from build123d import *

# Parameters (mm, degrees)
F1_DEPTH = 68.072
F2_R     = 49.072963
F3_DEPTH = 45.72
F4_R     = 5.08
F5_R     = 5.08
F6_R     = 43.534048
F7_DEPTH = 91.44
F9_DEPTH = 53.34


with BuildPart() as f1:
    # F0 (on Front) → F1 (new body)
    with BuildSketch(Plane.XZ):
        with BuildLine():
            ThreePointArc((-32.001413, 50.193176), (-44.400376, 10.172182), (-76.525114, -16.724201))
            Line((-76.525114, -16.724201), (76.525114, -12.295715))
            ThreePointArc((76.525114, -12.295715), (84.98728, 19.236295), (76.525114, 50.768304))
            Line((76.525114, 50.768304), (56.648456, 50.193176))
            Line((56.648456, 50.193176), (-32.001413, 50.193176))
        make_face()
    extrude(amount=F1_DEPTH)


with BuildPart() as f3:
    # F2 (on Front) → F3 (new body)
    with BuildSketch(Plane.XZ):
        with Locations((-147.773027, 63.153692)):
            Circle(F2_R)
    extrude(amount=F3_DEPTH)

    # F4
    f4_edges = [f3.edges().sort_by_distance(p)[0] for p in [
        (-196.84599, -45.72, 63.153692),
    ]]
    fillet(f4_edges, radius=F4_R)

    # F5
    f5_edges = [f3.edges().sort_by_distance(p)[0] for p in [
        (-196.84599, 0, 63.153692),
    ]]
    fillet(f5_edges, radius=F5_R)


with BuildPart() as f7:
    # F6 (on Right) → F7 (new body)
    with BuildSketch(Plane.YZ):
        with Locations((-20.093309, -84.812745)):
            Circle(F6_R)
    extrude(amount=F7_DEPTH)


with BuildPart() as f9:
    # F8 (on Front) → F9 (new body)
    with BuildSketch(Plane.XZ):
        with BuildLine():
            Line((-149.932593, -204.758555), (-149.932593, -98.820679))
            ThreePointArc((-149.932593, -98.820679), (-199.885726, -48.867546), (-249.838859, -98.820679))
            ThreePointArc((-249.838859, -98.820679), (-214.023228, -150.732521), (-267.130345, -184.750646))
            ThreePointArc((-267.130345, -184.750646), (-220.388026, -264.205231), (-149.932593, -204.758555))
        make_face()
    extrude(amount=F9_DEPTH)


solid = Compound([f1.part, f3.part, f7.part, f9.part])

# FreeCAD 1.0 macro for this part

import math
import FreeCAD as App
import Part
import Sketcher

V = App.Vector
Q = App.Units.Quantity


def edges_at(feature, points):
    """Names of the edges that pass closest to the given points."""
    edges = feature.Shape.Edges
    near = lambda p: min(range(len(edges)), key=lambda i: edges[i].distToShape(Part.Vertex(*p))[0])
    return sorted({f"Edge{near(p) + 1}" for p in points})

doc = App.newDocument("Part")
body = doc.addObject("PartDesign::Body", "Body")

sketch1 = body.newObject("Sketcher::SketchObject", "Sketch")
sketch1.AttachmentSupport = (doc.getObject("XZ_Plane"), [""])
sketch1.MapMode = "FlatFace"
sketch1.addGeometry([
    Part.ArcOfCircle(Part.Circle(V(-106, 51, 0), V(0, 0, 1), 74), math.radians(-66), math.radians(-1)),
    Part.LineSegment(V(-77, -17, 0), V(77, -12, 0)),
    Part.ArcOfCircle(Part.Circle(V(22, 19, 0), V(0, 0, 1), 63), math.radians(-30), math.radians(30)),
    Part.LineSegment(V(77, 51, 0), V(57, 50, 0)),
    Part.LineSegment(V(57, 50, 0), V(-32, 50, 0)),
], False)
sketch1.addConstraint([
    Sketcher.Constraint("Coincident", 0, 1, 1, 1),
    Sketcher.Constraint("Coincident", 1, 2, 2, 1),
    Sketcher.Constraint("Coincident", 2, 2, 3, 1),
    Sketcher.Constraint("Coincident", 3, 2, 4, 1),
    Sketcher.Constraint("Coincident", 4, 2, 0, 2),
    Sketcher.Constraint("Horizontal", 4),
    Sketcher.Constraint("Parallel", 1, 3),
    Sketcher.Constraint("Vertical", 1, 2, 2, 2),
    Sketcher.Constraint("Radius", 0, 74.089772),
    Sketcher.Constraint("Radius", 2, 62.978904),
    Sketcher.Constraint("DistanceX", 4, 2, 4, 1, 88.649869),
    Sketcher.Constraint("DistanceY", 0, 1, -1, 1, 16.724201),
    Sketcher.Constraint("DistanceX", 0, 1, 4, 2, 44.523701),
    Sketcher.Constraint("DistanceX", 0, 1, 2, 3, 98.53349),
    Sketcher.Constraint("DistanceY", 1, 2, 2, 3, 31.53201),
    Sketcher.Constraint("DistanceX", 0, 3, 1, 2, 182.60927),
    Sketcher.Constraint("DistanceX", 0, 3, -1, 1, 106.084156),
])
pad1 = body.newObject("PartDesign::Pad", "Pad")
pad1.Profile = sketch1
pad1.Length = Q("2.68 in")
body2 = doc.addObject("PartDesign::Body", "Body001")

sketch2 = body2.newObject("Sketcher::SketchObject", "Sketch001")
sketch2.AttachmentSupport = (doc.getObject("XZ_Plane001"), [""])
sketch2.MapMode = "FlatFace"
sketch2.addGeometry(Part.Circle(V(-148, 63, 0), V(0, 0, 1), 49), False)
sketch2.addConstraint([
    Sketcher.Constraint("Diameter", 0, 98.145926),
    Sketcher.Constraint("DistanceX", 0, 3, -1, 1, 147.773027),
    Sketcher.Constraint("DistanceY", -1, 1, 0, 3, 63.153692),
])
pad2 = body2.newObject("PartDesign::Pad", "Pad001")
pad2.Profile = sketch2
pad2.Length = Q("1.8 in")
doc.recompute()

fillet = body2.newObject("PartDesign::Fillet", "Fillet")
fillet.Base = (pad2, edges_at(pad2, [(-196.846, -45.72, 63.154)]))
fillet.Radius = Q("0.2 in")
doc.recompute()

fillet2 = body2.newObject("PartDesign::Fillet", "Fillet001")
fillet2.Base = (fillet, edges_at(fillet, [(-196.846, 0, 63.154)]))
fillet2.Radius = Q("0.2 in")
body3 = doc.addObject("PartDesign::Body", "Body002")

sketch3 = body3.newObject("Sketcher::SketchObject", "Sketch002")
sketch3.AttachmentSupport = (doc.getObject("YZ_Plane002"), [""])
sketch3.MapMode = "FlatFace"
sketch3.addGeometry(Part.Circle(V(-20, -85, 0), V(0, 0, 1), 44), False)
sketch3.addConstraint([
    Sketcher.Constraint("Diameter", 0, 87.068096),
    Sketcher.Constraint("DistanceX", 0, 3, -1, 1, 20.093309),
    Sketcher.Constraint("DistanceY", 0, 3, -1, 1, 84.812745),
])
pad3 = body3.newObject("PartDesign::Pad", "Pad002")
pad3.Profile = sketch3
pad3.Length = Q("3.6 in")
body4 = doc.addObject("PartDesign::Body", "Body003")

sketch4 = body4.newObject("Sketcher::SketchObject", "Sketch003")
sketch4.AttachmentSupport = (doc.getObject("XZ_Plane003"), [""])
sketch4.MapMode = "FlatFace"
sketch4.addGeometry([
    Part.LineSegment(V(-150, -205, 0), V(-150, -99, 0)),
    Part.ArcOfCircle(Part.Circle(V(-200, -99, 0), V(0, 0, 1), 50), math.radians(0), math.radians(180)),
    Part.ArcOfCircle(Part.Circle(V(-257, -142, 0), V(0, 0, 1), 44), math.radians(-103), math.radians(81)),
    Part.ArcOfCircle(Part.Circle(V(-210, -205, 0), V(0, 0, 1), 60), math.radians(161), math.radians(360)),
], False)
sketch4.addConstraint([
    Sketcher.Constraint("Tangent", 0, 2, 1, 1),
    Sketcher.Constraint("Coincident", 1, 2, 2, 2),
    Sketcher.Constraint("Coincident", 2, 1, 3, 1),
    Sketcher.Constraint("Tangent", 3, 2, 0, 1),
    Sketcher.Constraint("Vertical", 0),
    Sketcher.Constraint("Horizontal", 0, 2, 1, 2),
    Sketcher.Constraint("Radius", 2, 43.851919),
    Sketcher.Constraint("Radius", 1, 49.953133),
    Sketcher.Constraint("Radius", 3, 60.306743),
    Sketcher.Constraint("DistanceX", 2, 3, 0, 2, 107.0808),
    Sketcher.Constraint("DistanceY", 0, 1, 0, 2, 105.937876),
    Sketcher.Constraint("DistanceY", 1, 3, -1, 1, 98.820679),
    Sketcher.Constraint("DistanceX", 1, 2, -1, 1, 249.838859),
])
pad4 = body4.newObject("PartDesign::Pad", "Pad003")
pad4.Profile = sketch4
pad4.Length = Q("2.1 in")

doc.recompute()
